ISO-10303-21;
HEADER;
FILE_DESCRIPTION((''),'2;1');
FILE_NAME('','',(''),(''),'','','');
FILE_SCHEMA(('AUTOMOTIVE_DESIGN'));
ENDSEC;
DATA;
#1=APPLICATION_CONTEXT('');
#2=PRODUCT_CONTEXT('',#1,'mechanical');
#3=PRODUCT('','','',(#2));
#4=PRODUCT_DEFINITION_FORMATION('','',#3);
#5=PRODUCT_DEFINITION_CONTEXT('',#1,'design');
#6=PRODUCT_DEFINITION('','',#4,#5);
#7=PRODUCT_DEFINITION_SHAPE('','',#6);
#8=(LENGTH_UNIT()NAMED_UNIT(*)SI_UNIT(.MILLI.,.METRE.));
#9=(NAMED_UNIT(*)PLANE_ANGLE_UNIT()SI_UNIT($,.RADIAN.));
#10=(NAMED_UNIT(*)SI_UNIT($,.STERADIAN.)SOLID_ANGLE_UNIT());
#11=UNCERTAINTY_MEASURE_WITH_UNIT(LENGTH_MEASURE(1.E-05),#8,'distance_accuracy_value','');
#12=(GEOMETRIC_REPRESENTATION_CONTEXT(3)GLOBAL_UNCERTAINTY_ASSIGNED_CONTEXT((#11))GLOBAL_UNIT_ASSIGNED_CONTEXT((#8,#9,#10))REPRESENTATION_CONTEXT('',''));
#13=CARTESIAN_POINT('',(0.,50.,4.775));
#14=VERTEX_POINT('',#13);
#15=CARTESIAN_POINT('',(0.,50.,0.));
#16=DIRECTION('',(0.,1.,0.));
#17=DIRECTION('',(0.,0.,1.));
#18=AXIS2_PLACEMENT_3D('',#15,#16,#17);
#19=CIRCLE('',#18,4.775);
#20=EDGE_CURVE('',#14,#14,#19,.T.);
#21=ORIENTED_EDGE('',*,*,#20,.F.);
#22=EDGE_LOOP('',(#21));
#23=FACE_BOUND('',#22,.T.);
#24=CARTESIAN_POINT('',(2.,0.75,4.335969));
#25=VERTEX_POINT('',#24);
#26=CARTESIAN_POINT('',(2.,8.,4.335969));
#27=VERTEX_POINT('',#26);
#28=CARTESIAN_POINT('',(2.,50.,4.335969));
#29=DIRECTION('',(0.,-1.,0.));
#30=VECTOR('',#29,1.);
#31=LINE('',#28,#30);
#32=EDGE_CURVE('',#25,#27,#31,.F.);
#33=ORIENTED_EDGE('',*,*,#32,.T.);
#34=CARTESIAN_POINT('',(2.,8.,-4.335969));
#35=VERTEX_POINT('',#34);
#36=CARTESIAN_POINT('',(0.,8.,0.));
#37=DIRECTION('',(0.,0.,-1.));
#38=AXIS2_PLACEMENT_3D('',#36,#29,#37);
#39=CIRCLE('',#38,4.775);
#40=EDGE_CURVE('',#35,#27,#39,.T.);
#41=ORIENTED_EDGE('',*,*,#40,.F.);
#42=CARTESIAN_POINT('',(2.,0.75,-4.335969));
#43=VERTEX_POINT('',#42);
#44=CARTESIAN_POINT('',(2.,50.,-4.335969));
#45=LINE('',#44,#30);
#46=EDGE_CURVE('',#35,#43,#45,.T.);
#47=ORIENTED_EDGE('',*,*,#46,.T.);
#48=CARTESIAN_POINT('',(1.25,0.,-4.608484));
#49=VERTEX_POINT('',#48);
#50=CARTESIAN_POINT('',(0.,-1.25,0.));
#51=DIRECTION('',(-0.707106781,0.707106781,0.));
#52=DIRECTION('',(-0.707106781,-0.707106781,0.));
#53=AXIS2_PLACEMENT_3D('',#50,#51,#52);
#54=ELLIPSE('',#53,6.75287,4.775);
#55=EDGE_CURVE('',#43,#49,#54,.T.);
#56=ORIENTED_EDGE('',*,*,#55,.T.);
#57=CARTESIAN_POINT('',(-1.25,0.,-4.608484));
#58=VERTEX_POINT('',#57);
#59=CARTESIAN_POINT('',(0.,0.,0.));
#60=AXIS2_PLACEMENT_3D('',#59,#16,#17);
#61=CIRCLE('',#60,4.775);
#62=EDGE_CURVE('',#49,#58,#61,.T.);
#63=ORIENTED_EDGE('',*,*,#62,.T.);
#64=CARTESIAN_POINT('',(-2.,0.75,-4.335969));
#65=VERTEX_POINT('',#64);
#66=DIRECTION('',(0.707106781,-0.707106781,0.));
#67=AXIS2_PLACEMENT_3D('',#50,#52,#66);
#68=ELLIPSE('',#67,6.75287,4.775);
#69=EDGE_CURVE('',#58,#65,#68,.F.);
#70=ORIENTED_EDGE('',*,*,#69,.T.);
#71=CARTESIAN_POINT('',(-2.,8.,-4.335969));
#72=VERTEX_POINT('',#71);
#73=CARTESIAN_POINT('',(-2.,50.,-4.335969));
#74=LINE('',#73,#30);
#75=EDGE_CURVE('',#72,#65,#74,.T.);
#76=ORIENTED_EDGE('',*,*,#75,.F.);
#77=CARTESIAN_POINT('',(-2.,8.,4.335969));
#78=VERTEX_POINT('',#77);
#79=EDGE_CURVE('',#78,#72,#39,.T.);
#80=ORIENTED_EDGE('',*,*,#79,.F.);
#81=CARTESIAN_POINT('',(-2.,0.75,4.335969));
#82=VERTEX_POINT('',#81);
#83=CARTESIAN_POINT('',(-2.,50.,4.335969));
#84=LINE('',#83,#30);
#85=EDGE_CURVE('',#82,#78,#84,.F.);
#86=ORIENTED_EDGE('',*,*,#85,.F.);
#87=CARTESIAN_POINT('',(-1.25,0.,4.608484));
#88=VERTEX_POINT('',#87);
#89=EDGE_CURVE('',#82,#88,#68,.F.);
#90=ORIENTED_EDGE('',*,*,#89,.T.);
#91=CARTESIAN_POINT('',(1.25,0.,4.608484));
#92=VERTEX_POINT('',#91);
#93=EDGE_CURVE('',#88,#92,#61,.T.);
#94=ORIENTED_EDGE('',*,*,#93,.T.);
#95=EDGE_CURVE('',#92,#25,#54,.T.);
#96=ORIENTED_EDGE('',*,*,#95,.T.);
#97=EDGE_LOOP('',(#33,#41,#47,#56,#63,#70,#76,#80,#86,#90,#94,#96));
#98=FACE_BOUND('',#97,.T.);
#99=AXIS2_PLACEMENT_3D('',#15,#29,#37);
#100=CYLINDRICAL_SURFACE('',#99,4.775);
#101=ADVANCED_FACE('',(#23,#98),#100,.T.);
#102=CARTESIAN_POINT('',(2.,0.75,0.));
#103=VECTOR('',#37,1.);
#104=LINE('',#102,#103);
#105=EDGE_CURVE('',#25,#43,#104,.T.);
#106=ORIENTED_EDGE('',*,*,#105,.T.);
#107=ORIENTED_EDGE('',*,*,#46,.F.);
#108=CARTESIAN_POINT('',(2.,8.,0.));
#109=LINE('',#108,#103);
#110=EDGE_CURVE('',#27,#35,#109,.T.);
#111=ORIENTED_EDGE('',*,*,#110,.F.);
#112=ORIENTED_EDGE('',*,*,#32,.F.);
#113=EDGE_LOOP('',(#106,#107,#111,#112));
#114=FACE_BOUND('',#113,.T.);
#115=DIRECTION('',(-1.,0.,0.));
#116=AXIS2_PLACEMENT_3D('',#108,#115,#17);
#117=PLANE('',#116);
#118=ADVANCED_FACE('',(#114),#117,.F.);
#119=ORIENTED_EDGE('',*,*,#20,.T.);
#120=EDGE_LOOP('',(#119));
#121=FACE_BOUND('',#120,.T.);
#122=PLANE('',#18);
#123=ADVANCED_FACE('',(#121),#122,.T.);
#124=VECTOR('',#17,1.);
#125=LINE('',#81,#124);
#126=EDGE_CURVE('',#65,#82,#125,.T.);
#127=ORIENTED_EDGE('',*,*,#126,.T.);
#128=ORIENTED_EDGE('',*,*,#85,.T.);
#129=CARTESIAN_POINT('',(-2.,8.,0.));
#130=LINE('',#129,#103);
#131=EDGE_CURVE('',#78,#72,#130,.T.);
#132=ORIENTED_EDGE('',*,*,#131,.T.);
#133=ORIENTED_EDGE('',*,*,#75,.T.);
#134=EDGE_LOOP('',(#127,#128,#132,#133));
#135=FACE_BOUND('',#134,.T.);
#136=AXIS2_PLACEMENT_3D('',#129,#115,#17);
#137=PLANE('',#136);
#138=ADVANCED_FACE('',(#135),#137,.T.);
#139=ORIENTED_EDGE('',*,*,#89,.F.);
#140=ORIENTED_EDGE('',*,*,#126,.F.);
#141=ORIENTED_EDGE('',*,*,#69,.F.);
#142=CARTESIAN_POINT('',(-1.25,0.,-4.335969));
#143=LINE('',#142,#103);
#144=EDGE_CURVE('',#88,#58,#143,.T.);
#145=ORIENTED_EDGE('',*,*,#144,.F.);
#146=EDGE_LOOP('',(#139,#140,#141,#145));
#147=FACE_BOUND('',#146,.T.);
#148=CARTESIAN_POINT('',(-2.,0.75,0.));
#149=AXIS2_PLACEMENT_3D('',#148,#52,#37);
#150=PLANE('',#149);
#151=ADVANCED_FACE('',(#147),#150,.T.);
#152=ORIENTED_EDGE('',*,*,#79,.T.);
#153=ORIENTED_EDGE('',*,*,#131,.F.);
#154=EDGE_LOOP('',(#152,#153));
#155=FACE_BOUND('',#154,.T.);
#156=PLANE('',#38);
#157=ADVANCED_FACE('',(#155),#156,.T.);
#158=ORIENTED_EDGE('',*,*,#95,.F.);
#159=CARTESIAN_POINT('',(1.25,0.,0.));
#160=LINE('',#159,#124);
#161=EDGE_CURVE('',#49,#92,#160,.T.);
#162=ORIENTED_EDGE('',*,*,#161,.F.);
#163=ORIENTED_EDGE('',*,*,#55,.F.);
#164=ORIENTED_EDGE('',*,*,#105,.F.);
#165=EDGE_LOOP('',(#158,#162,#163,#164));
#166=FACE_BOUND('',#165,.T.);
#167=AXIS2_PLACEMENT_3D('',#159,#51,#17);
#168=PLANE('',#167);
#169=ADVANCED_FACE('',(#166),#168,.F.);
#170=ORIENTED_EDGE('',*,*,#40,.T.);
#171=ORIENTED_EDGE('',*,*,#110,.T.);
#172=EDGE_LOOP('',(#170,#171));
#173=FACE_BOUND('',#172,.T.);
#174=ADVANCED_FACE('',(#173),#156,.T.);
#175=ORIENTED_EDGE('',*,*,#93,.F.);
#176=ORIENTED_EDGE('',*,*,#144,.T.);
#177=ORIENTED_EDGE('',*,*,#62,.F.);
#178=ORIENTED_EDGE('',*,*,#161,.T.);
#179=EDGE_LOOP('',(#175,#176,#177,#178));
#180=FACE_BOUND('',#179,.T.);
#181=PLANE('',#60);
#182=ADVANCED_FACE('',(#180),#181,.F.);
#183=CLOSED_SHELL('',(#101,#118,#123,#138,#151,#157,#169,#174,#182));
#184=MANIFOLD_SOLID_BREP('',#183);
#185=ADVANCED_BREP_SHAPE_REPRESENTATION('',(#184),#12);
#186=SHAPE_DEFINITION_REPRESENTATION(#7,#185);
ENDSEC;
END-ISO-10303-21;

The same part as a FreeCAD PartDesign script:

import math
import FreeCAD as App
import Part
import Sketcher
from FreeCAD import Vector
Q = App.Units.Quantity


def edges_at(feature, points):
    """Names of the edges that pass closest to the given points."""
    edges = feature.Shape.Edges
    near = lambda p: min(range(len(edges)), key=lambda i: edges[i].distToShape(Part.Vertex(*p))[0])
    return sorted({f"Edge{near(p) + 1}" for p in points})

doc = App.newDocument("Part")
body = doc.addObject("PartDesign::Body", "Body")

sketch1 = body.newObject("Sketcher::SketchObject", "Sketch")
sketch1.AttachmentSupport = (doc.getObject("XZ_Plane"), [""])
sketch1.MapMode = "FlatFace"
sketch1.addGeometry(Part.Circle(Vector(0, 0, 0), Vector(0, 0, 1), 4.8), False)
sketch1.addConstraint([
    Sketcher.Constraint("Coincident", 0, 3, -1, 1),
    Sketcher.Constraint("Diameter", 0, Q("9.55 mm")),
])
pad1 = body.newObject("PartDesign::Pad", "Pad")
pad1.Profile = sketch1
pad1.Length = 50
pad1.Reversed = True

sketch2 = body.newObject("Sketcher::SketchObject", "Sketch001")
sketch2.AttachmentSupport = (doc.getObject("XZ_Plane"), [""])
sketch2.MapMode = "FlatFace"
sketch2.addGeometry([
    Part.ArcOfCircle(Part.Circle(Vector(0, 0, 0), Vector(0, 0, 1), 6), math.radians(0), math.radians(70)),
    Part.LineSegment(Vector(2, 5, 0), Vector(2, -5, 0)),
    Part.ArcOfCircle(Part.Circle(Vector(0, 0, 0), Vector(0, 0, 1), 6), math.radians(-70), math.radians(0)),
    Part.ArcOfCircle(Part.Circle(Vector(0, 0, 0), Vector(0, 0, 1), 6), math.radians(110), math.radians(250)),
    Part.LineSegment(Vector(-2, -5, 0), Vector(-2, 5, 0)),
], False)
sketch2.addConstraint([
    Sketcher.Constraint("Coincident", 0, 2, 1, 1),
    Sketcher.Constraint("Coincident", 1, 2, 2, 1),
    Sketcher.Constraint("Tangent", 2, 2, 0, 1),
    Sketcher.Constraint("Coincident", 3, 1, 4, 2),
    Sketcher.Constraint("Coincident", 4, 1, 3, 2),
    Sketcher.Constraint("Vertical", 1),
    Sketcher.Constraint("Vertical", 4),
    Sketcher.Constraint("Coincident", 0, 3, -1, 1),
    Sketcher.Constraint("Coincident", 3, 3, -1, 1),
    Sketcher.Constraint("Equal", 0, 2),
    Sketcher.Constraint("Equal", 2, 3),
    Sketcher.Constraint("PointOnObject", 2, 2, -1),
    Sketcher.Constraint("Horizontal", 0, 2, 3, 1),
    Sketcher.Constraint("DistanceX", -1, 1, 0, 2, Q("2 mm")),
    Sketcher.Constraint("Radius", 0, Q("5.794779 mm")),
])
pocket1 = body.newObject("PartDesign::Pocket", "Pocket")
pocket1.Profile = sketch2
pocket1.Length = 8
doc.recompute()

chamfer = body.newObject("PartDesign::Chamfer", "Chamfer")
chamfer.Base = (pocket1, edges_at(pocket1, [(-2, 0, 0), (2, 0, 0)]))
chamfer.Size = 0.75

doc.recompute()
